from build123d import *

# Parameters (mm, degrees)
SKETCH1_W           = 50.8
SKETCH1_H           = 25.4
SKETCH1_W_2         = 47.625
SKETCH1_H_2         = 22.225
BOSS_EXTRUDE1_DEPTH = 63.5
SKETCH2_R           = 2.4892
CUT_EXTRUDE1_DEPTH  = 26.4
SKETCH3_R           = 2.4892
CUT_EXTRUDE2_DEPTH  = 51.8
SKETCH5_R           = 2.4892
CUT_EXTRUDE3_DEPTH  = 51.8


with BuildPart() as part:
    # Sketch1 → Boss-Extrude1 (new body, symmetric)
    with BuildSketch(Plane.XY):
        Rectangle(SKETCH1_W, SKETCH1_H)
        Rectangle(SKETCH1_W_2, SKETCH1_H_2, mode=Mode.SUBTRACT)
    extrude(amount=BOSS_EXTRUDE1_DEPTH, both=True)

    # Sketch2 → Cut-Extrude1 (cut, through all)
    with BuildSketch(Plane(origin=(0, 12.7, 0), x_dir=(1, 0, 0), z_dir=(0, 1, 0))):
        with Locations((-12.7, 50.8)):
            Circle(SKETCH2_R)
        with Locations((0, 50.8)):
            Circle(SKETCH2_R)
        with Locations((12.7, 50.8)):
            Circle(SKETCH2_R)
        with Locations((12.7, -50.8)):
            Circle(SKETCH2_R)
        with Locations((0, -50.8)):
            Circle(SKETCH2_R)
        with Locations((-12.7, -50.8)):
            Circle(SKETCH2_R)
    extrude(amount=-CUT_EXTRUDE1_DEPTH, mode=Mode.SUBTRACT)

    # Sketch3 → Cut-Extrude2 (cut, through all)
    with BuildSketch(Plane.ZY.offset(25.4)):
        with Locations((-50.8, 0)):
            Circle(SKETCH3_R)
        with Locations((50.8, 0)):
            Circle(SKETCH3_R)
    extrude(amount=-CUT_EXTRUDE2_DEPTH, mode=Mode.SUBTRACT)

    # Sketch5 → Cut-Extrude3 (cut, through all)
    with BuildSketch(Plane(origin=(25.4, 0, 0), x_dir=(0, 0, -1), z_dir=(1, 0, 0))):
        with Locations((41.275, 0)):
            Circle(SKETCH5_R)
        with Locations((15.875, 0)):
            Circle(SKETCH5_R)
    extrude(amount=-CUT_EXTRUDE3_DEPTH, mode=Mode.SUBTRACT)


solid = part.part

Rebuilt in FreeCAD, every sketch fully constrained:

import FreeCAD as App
import Part
import Sketcher

V = App.Vector
Q = App.Units.Quantity

doc = App.newDocument("Part")
body = doc.addObject("PartDesign::Body", "Body")

sketch1 = doc.addObject("Sketcher::SketchObject", "Sketch")
body.addObject(sketch1)
sketch1.AttachmentSupport = (doc.XY_Plane, [""])
sketch1.MapMode = "FlatFace"
sketch1.addGeometry(Part.LineSegment(V(-25, 13, 0), V(-25, -13, 0)), False)
sketch1.addGeometry(Part.LineSegment(V(-25, -13, 0), V(25, -13, 0)), False)
sketch1.addGeometry(Part.LineSegment(V(25, -13, 0), V(25, 13, 0)), False)
sketch1.addGeometry(Part.LineSegment(V(25, 13, 0), V(-25, 13, 0)), False)
sketch1.addGeometry(Part.LineSegment(V(24, -11, 0), V(-24, -11, 0)), False)
sketch1.addGeometry(Part.LineSegment(V(-24, -11, 0), V(-24, 11, 0)), False)
sketch1.addGeometry(Part.LineSegment(V(-24, 11, 0), V(24, 11, 0)), False)
sketch1.addGeometry(Part.LineSegment(V(24, 11, 0), V(24, -11, 0)), False)
sketch1.addConstraint(Sketcher.Constraint("Coincident", 0, 2, 1, 1))
sketch1.addConstraint(Sketcher.Constraint("Coincident", 1, 2, 2, 1))
sketch1.addConstraint(Sketcher.Constraint("Coincident", 2, 2, 3, 1))
sketch1.addConstraint(Sketcher.Constraint("Coincident", 3, 2, 0, 1))
sketch1.addConstraint(Sketcher.Constraint("Coincident", 4, 2, 5, 1))
sketch1.addConstraint(Sketcher.Constraint("Coincident", 5, 2, 6, 1))
sketch1.addConstraint(Sketcher.Constraint("Coincident", 6, 2, 7, 1))
sketch1.addConstraint(Sketcher.Constraint("Coincident", 7, 2, 4, 1))
sketch1.addConstraint(Sketcher.Constraint("Vertical", 0))
sketch1.addConstraint(Sketcher.Constraint("Horizontal", 1))
sketch1.addConstraint(Sketcher.Constraint("Vertical", 2))
sketch1.addConstraint(Sketcher.Constraint("Horizontal", 3))
sketch1.addConstraint(Sketcher.Constraint("Horizontal", 4))
sketch1.addConstraint(Sketcher.Constraint("Vertical", 5))
sketch1.addConstraint(Sketcher.Constraint("Horizontal", 6))
sketch1.addConstraint(Sketcher.Constraint("Vertical", 7))
sketch1.addConstraint(Sketcher.Constraint("Symmetric", 0, 2, 2, 2, -1, 1))
sketch1.addConstraint(Sketcher.Constraint("Symmetric", 4, 2, 6, 2, -1, 1))
sketch1.addConstraint(Sketcher.Constraint("DistanceX", 1, 1, 1, 2, Q("2 in")))
sketch1.addConstraint(Sketcher.Constraint("DistanceY", 0, 2, 0, 1, Q("1 in")))
sketch1.addConstraint(Sketcher.Constraint("DistanceX", 4, 2, 4, 1, Q("1.875 in")))
sketch1.addConstraint(Sketcher.Constraint("DistanceY", 5, 1, 5, 2, Q("0.875 in")))
pad1 = doc.addObject("PartDesign::Pad", "Pad")
body.addObject(pad1)
pad1.Profile = sketch1
pad1.Length = Q("5 in")
pad1.Midplane = True

sketch2 = doc.addObject("Sketcher::SketchObject", "Sketch001")
body.addObject(sketch2)
sketch2.AttachmentSupport = (doc.XZ_Plane, [""])
sketch2.MapMode = "FlatFace"
sketch2.AttachmentOffset = App.Placement(V(0, 0, -0.5 * 25.4), App.Rotation())
sketch2.addGeometry(Part.Circle(V(-12.7, -50.8, 0), V(0, 0, 1), 2.5), False)
sketch2.addGeometry(Part.Circle(V(0, -50.8, 0), V(0, 0, 1), 2.5), False)
sketch2.addGeometry(Part.Circle(V(12.7, -50.8, 0), V(0, 0, 1), 2.5), False)
sketch2.addGeometry(Part.Circle(V(12.7, 50.8, 0), V(0, 0, 1), 2.5), False)
sketch2.addGeometry(Part.Circle(V(0, 50.8, 0), V(0, 0, 1), 2.5), False)
sketch2.addGeometry(Part.Circle(V(-12.7, 50.8, 0), V(0, 0, 1), 2.5), False)
sketch2.addConstraint(Sketcher.Constraint("Equal", 0, 1))
sketch2.addConstraint(Sketcher.Constraint("Equal", 1, 2))
sketch2.addConstraint(Sketcher.Constraint("Equal", 2, 3))
sketch2.addConstraint(Sketcher.Constraint("Equal", 3, 4))
sketch2.addConstraint(Sketcher.Constraint("Equal", 4, 5))
sketch2.addConstraint(Sketcher.Constraint("Symmetric", 0, 3, 3, 3, -1, 1))
sketch2.addConstraint(Sketcher.Constraint("Symmetric", 1, 3, 4, 3, -1, 1))
sketch2.addConstraint(Sketcher.Constraint("Symmetric", 2, 3, 5, 3, -1, 1))
sketch2.addConstraint(Sketcher.Constraint("Symmetric", 0, 3, 2, 3, -2))
sketch2.addConstraint(Sketcher.Constraint("PointOnObject", 1, 3, -2))
sketch2.addConstraint(Sketcher.Constraint("Horizontal", 0, 3, 1, 3))
sketch2.addConstraint(Sketcher.Constraint("Diameter", 0, Q("0.196 in")))
sketch2.addConstraint(Sketcher.Constraint("DistanceY", 0, 3, -1, 1, Q("2 in")))
sketch2.addConstraint(Sketcher.Constraint("DistanceX", 0, 3, 2, 3, Q("1 in")))
pocket1 = doc.addObject("PartDesign::Pocket", "Pocket")
body.addObject(pocket1)
pocket1.Profile = sketch2
pocket1.Type = "ThroughAll"
pocket1.Reversed = True

sketch3 = doc.addObject("Sketcher::SketchObject", "Sketch002")
body.addObject(sketch3)
sketch3.AttachmentSupport = (doc.YZ_Plane, [""])
sketch3.MapMode = "FlatFace"
sketch3.AttachmentOffset = App.Placement(V(0, 0, -1 * 25.4), App.Rotation())
sketch3.addGeometry(Part.Circle(V(0, -50.8, 0), V(0, 0, 1), 2.5), False)
sketch3.addGeometry(Part.Circle(V(0, 50.8, 0), V(0, 0, 1), 2.5), False)
sketch3.addConstraint(Sketcher.Constraint("Equal", 0, 1))
sketch3.addConstraint(Sketcher.Constraint("Symmetric", 0, 3, 1, 3, -1, 1))
sketch3.addConstraint(Sketcher.Constraint("PointOnObject", 0, 3, -2))
sketch3.addConstraint(Sketcher.Constraint("Diameter", 0, Q("0.196 in")))
sketch3.addConstraint(Sketcher.Constraint("DistanceY", 0, 3, -1, 1, Q("2 in")))
pocket2 = doc.addObject("PartDesign::Pocket", "Pocket001")
body.addObject(pocket2)
pocket2.Profile = sketch3
pocket2.Type = "ThroughAll"
pocket2.Reversed = True

sketch4 = doc.addObject("Sketcher::SketchObject", "Sketch003")
body.addObject(sketch4)
sketch4.AttachmentSupport = (doc.YZ_Plane, [""])
sketch4.MapMode = "FlatFace"
sketch4.AttachmentOffset = App.Placement(V(0, 0, 1 * 25.4), App.Rotation())
sketch4.addGeometry(Part.Circle(V(0, -41.3, 0), V(0, 0, 1), 2.5), False)
sketch4.addGeometry(Part.Circle(V(0, -15.9, 0), V(0, 0, 1), 2.5), False)
sketch4.addConstraint(Sketcher.Constraint("Equal", 0, 1))
sketch4.addConstraint(Sketcher.Constraint("PointOnObject", 0, 3, -2))
sketch4.addConstraint(Sketcher.Constraint("PointOnObject", 1, 3, -2))
sketch4.addConstraint(Sketcher.Constraint("Diameter", 0, Q("0.196 in")))
sketch4.addConstraint(Sketcher.Constraint("DistanceY", 0, 3, 1, 3, Q("1 in")))
sketch4.addConstraint(Sketcher.Constraint("DistanceY", 0, 3, -1, 1, Q("1.625 in")))
pocket3 = doc.addObject("PartDesign::Pocket", "Pocket002")
body.addObject(pocket3)
pocket3.Profile = sketch4
pocket3.Type = "ThroughAll"

doc.recompute()
